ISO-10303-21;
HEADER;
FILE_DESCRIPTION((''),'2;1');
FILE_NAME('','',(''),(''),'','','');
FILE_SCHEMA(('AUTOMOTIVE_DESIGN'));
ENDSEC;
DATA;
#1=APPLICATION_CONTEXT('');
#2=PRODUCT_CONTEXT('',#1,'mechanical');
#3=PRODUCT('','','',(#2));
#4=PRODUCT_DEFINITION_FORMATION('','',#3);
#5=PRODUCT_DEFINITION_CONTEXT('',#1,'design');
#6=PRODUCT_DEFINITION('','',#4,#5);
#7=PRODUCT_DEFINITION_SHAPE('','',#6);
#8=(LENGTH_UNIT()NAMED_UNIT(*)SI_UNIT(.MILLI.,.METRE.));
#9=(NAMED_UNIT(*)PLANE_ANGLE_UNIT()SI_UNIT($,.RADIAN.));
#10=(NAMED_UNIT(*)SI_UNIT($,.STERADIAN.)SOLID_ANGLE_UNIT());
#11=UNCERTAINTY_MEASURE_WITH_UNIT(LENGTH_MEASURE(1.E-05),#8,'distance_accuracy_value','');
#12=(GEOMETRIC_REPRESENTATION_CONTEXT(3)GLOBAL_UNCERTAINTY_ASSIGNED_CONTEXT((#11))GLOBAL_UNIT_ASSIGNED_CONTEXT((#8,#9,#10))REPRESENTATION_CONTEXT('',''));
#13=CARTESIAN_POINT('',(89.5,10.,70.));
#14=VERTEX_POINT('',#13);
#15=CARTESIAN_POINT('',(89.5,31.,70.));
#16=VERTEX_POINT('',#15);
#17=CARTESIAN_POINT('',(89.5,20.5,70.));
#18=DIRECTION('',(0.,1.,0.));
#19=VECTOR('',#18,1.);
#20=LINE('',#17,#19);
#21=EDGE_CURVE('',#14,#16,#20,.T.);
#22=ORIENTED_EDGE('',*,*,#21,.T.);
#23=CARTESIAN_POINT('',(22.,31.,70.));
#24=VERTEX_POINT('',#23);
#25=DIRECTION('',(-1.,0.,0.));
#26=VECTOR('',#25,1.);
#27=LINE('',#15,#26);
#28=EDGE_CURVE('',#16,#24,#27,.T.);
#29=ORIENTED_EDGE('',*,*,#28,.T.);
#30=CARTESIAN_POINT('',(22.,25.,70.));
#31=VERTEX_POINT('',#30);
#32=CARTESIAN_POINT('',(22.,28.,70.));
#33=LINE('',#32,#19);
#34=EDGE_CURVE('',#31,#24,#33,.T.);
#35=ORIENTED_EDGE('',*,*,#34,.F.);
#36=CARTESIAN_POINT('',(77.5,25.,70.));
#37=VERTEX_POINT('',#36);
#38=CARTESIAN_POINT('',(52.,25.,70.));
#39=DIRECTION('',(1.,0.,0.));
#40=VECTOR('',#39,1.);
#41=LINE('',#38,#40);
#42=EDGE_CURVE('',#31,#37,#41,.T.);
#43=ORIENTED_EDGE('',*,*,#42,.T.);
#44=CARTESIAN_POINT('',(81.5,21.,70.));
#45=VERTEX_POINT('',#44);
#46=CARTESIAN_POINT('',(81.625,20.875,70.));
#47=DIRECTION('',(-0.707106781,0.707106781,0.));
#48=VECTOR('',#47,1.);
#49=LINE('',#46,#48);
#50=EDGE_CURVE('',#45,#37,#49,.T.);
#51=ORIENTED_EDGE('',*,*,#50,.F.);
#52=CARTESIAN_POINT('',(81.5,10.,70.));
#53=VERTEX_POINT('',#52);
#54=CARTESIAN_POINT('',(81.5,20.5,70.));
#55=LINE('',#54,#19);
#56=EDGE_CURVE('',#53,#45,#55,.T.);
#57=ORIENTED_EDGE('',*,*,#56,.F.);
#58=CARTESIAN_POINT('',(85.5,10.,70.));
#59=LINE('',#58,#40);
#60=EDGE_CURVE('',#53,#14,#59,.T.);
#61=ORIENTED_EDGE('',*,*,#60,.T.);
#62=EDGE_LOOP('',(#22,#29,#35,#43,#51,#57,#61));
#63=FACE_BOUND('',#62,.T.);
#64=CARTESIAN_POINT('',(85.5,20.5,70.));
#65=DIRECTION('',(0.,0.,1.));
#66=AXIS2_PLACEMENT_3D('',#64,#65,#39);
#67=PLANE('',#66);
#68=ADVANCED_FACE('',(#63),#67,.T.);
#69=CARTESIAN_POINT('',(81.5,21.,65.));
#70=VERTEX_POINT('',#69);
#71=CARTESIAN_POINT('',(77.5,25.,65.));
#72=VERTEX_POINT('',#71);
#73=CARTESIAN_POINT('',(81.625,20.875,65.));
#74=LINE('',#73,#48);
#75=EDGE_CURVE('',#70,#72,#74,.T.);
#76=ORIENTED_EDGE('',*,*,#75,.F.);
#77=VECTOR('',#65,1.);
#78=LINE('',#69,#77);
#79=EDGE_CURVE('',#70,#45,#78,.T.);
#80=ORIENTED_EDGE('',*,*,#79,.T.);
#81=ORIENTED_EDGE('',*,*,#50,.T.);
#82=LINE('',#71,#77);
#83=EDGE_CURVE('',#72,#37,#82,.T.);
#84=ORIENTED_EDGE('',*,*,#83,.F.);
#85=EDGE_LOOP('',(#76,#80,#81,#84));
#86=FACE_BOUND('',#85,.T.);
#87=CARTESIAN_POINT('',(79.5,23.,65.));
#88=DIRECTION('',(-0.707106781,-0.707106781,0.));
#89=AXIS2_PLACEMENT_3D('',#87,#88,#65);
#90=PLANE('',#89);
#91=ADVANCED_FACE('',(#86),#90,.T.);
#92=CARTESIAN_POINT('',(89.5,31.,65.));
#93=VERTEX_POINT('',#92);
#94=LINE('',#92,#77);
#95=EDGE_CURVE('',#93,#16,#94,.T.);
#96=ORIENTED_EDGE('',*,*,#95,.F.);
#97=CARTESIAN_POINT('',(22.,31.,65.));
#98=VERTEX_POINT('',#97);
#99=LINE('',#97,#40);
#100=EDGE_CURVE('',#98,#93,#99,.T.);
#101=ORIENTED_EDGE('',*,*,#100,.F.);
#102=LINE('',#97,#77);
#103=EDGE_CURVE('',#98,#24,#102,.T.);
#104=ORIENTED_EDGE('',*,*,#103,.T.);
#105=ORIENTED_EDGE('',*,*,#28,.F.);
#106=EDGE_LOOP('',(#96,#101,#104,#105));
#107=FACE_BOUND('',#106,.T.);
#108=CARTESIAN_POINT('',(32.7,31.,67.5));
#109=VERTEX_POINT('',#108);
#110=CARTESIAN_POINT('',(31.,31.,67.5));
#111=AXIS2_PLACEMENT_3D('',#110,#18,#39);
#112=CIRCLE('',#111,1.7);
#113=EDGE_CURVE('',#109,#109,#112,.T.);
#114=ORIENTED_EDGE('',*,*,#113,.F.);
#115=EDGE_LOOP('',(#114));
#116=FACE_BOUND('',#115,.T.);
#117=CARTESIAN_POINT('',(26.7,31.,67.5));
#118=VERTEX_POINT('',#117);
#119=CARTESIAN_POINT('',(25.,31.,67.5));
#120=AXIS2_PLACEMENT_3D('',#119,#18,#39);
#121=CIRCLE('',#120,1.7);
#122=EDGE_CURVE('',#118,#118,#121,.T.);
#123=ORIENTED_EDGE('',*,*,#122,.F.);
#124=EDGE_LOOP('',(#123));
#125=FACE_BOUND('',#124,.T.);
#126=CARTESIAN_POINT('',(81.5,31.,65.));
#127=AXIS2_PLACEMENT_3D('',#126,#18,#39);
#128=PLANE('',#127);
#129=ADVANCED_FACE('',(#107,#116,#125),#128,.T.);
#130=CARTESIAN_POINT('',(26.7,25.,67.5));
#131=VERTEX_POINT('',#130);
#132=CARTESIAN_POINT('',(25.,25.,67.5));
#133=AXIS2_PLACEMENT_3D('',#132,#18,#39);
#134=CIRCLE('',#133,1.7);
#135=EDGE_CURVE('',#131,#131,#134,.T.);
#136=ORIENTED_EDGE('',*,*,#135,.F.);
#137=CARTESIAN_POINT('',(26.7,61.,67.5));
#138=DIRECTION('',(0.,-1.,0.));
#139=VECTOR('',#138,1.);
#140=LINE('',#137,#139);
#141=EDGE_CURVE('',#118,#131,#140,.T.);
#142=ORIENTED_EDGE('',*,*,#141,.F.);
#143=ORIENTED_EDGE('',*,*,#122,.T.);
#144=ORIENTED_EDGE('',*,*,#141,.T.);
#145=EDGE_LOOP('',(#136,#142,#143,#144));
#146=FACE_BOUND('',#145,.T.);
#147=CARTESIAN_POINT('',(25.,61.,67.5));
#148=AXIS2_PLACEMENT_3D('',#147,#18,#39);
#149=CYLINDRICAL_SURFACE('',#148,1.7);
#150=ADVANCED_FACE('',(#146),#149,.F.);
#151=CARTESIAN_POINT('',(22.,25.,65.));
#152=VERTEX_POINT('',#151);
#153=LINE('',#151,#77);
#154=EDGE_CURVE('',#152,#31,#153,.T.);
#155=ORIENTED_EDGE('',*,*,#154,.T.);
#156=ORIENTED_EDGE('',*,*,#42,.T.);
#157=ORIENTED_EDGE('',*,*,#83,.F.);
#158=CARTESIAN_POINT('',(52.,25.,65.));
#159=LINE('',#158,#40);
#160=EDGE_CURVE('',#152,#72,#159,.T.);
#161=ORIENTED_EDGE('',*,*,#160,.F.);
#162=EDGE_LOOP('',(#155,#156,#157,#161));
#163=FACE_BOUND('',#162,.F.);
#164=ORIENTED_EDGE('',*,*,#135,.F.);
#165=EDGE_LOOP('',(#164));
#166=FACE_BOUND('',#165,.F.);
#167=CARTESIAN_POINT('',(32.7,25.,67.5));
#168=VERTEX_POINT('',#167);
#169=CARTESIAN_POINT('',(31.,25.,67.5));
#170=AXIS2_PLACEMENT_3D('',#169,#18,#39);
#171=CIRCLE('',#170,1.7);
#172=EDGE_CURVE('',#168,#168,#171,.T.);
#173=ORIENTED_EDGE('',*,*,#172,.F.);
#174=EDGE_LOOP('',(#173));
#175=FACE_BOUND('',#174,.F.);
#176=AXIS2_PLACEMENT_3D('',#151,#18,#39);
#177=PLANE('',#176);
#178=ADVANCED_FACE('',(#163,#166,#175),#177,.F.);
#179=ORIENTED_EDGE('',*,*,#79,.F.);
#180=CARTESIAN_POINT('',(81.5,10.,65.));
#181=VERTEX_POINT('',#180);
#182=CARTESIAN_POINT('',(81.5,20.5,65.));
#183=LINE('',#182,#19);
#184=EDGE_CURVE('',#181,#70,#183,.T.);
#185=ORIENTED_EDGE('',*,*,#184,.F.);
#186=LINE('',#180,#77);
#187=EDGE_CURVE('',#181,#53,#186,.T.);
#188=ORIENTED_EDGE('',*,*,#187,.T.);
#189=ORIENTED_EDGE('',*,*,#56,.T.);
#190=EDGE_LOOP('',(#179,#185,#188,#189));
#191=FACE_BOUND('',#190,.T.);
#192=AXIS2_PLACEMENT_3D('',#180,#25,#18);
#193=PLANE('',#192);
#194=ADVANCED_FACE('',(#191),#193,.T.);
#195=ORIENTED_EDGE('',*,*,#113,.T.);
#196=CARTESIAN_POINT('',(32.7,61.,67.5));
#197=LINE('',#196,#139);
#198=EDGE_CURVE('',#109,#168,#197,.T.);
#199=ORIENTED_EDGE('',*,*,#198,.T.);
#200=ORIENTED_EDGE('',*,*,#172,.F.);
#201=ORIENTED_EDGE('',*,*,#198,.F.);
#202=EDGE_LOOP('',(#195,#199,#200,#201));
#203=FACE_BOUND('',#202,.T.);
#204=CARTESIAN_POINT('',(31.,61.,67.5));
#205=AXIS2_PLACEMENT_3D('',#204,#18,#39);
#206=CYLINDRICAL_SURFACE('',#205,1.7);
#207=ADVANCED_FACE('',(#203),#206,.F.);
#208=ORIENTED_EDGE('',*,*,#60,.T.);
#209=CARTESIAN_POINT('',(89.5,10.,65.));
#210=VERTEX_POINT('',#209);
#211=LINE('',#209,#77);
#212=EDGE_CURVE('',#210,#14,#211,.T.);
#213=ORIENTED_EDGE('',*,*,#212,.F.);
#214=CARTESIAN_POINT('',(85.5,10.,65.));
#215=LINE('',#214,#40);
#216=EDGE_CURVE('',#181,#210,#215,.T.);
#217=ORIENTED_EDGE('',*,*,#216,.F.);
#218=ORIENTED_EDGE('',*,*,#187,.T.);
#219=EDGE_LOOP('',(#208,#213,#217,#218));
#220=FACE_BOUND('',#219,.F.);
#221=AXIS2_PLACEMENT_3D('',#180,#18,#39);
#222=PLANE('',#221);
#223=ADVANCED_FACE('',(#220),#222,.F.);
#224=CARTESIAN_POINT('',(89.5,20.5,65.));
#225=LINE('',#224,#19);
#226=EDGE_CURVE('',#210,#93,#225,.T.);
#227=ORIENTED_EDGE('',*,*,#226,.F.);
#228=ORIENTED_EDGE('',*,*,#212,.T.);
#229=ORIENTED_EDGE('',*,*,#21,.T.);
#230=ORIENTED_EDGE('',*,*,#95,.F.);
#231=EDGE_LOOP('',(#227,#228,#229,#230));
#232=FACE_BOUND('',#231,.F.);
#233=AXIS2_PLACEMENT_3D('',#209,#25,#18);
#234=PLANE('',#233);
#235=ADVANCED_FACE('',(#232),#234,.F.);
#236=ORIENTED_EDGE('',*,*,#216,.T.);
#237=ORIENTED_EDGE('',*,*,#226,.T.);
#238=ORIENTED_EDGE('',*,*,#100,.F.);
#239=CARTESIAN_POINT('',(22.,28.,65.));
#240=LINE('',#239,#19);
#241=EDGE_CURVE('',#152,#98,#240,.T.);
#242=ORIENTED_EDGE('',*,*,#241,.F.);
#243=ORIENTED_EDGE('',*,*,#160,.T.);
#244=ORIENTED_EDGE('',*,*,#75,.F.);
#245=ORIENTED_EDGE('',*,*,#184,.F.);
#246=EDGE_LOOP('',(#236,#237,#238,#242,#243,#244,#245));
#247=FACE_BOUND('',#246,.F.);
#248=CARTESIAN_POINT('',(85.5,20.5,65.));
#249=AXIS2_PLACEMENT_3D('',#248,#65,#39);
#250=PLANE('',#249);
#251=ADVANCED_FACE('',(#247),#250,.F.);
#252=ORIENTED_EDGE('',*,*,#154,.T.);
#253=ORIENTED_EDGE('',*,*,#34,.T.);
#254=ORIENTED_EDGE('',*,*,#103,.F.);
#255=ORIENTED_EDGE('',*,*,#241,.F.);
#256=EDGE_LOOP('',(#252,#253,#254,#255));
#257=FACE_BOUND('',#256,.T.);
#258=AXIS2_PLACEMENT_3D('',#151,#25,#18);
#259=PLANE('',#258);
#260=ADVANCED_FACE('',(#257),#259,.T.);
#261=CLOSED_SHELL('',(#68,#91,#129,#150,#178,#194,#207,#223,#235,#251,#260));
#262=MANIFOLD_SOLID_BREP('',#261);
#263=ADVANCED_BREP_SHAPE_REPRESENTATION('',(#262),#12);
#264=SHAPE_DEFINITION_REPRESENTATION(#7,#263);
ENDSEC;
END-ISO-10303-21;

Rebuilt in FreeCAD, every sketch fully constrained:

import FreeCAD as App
import Part
import Sketcher

V = App.Vector


def edges_at(feature, points):
    """Names of the edges that pass closest to the given points."""
    edges = feature.Shape.Edges
    near = lambda p: min(range(len(edges)), key=lambda i: edges[i].distToShape(Part.Vertex(*p))[0])
    return sorted({f"Edge{near(p) + 1}" for p in points})


def add_polygon(sketch, points):
    """Adds a closed chain of lines whose ends are joined by coincident constraints."""
    first, n = sketch.GeometryCount, len(points)
    for a, b in zip(points, points[1:] + points[:1]):
        sketch.addGeometry(Part.LineSegment(App.Vector(*a, 0), App.Vector(*b, 0)), False)
    for i in range(n):
        sketch.addConstraint(Sketcher.Constraint("Coincident", first + i, 2, first + (i + 1) % n, 1))

doc = App.newDocument("Part")
body = doc.addObject("PartDesign::Body", "Body")

# Sketch on XY plane
sketch1 = doc.addObject("Sketcher::SketchObject", "Sketch")
body.addObject(sketch1)
sketch1.AttachmentSupport = (doc.XY_Plane, [""])
sketch1.MapMode = "FlatFace"
sketch1.addGeometry(Part.Circle(V(0, 0, 0), V(0, 0, 1), 1.7), False)
sketch1.addConstraint([
    Sketcher.Constraint("Coincident", 0, 3, -1, 1),
    Sketcher.Constraint("Diameter", 0, 3.4),
])
pad1 = doc.addObject("PartDesign::Pad", "Pad")
body.addObject(pad1)
pad1.Profile = sketch1
pad1.Length = 50
body2 = doc.addObject("PartDesign::Body", "Body001")
doc.recompute()

body.Placement = App.Placement(V(0, 0, 0), App.Rotation(V(1, 0, 0), 90))
boolean = doc.addObject("PartDesign::Boolean", "Boolean")
body2.addObject(boolean)
boolean.Type = "Fuse"
boolean.addObjects([body])
body3 = doc.addObject("PartDesign::Body", "Body002")
doc.recompute()

body2.Placement = App.Placement(V(25, 61, 67.5), App.Rotation(V(0, 0, 1), 0))
boolean2 = doc.addObject("PartDesign::Boolean", "Boolean001")
body3.addObject(boolean2)
boolean2.Type = "Fuse"
boolean2.addObjects([body2])
body4 = doc.addObject("PartDesign::Body", "Body003")

# Sketch on XY plane
sketch2 = doc.addObject("Sketcher::SketchObject", "Sketch001")
body4.addObject(sketch2)
sketch2.AttachmentSupport = (doc.getObject("XY_Plane003"), [""])
sketch2.MapMode = "FlatFace"
sketch2.addGeometry(Part.Circle(V(0, 0, 0), V(0, 0, 1), 1.7), False)
sketch2.addConstraint([
    Sketcher.Constraint("Coincident", 0, 3, -1, 1),
    Sketcher.Constraint("Diameter", 0, 3.4),
])
pad2 = doc.addObject("PartDesign::Pad", "Pad001")
body4.addObject(pad2)
pad2.Profile = sketch2
pad2.Length = 50
body5 = doc.addObject("PartDesign::Body", "Body004")
doc.recompute()

body4.Placement = App.Placement(V(0, 0, 0), App.Rotation(V(1, 0, 0), 90))
boolean3 = doc.addObject("PartDesign::Boolean", "Boolean002")
body5.addObject(boolean3)
boolean3.Type = "Fuse"
boolean3.addObjects([body4])
body6 = doc.addObject("PartDesign::Body", "Body005")
body6.AllowCompound = True
doc.recompute()

body5.Placement = App.Placement(V(31, 61, 67.5), App.Rotation(V(0, 0, 1), 0))
boolean4 = doc.addObject("PartDesign::Boolean", "Boolean003")
body6.addObject(boolean4)
boolean4.Type = "Fuse"
boolean4.addObjects([body5])
doc.recompute()

boolean5 = doc.addObject("PartDesign::Boolean", "Boolean004")
body6.addObject(boolean5)
boolean5.Type = "Fuse"
boolean5.addObjects([body3])
body7 = doc.addObject("PartDesign::Body", "Body006")

# Sketch on XY plane
sketch3 = doc.addObject("Sketcher::SketchObject", "Sketch002")
body7.addObject(sketch3)
sketch3.AttachmentSupport = (doc.getObject("XY_Plane006"), [""])
sketch3.MapMode = "FlatFace"
sketch3.AttachmentOffset = App.Placement(V(0, 0, 65), App.Rotation())
add_polygon(sketch3, [(82, 31), (82, 10), (90, 10), (90, 31)])  # lines 0-3
sketch3.addConstraint([
    Sketcher.Constraint("Vertical", 0),
    Sketcher.Constraint("Horizontal", 1),
    Sketcher.Constraint("Vertical", 2),
    Sketcher.Constraint("Horizontal", 3),
    Sketcher.Constraint("DistanceX", 1, 1, 1, 2, 8.0),
    Sketcher.Constraint("DistanceY", 0, 2, 0, 1, 21.0),
    Sketcher.Constraint("DistanceY", -1, 1, 0, 2, 10.0),
    Sketcher.Constraint("DistanceX", -1, 1, 0, 2, 81.5),
])
pad3 = doc.addObject("PartDesign::Pad", "Pad002")
body7.addObject(pad3)
pad3.Profile = sketch3
pad3.Length = 5
body8 = doc.addObject("PartDesign::Body", "Body007")

# Sketch on XY plane
sketch4 = doc.addObject("Sketcher::SketchObject", "Sketch003")
body8.addObject(sketch4)
sketch4.AttachmentSupport = (doc.getObject("XY_Plane007"), [""])
sketch4.MapMode = "FlatFace"
sketch4.AttachmentOffset = App.Placement(V(0, 0, 65), App.Rotation())
add_polygon(sketch4, [(22, 31), (22, 25), (82, 25), (82, 31)])  # lines 0-3
sketch4.addConstraint([
    Sketcher.Constraint("Vertical", 0),
    Sketcher.Constraint("Horizontal", 1),
    Sketcher.Constraint("Vertical", 2),
    Sketcher.Constraint("Horizontal", 3),
    Sketcher.Constraint("DistanceX", 1, 1, 1, 2, 60.0),
    Sketcher.Constraint("DistanceY", 0, 2, 0, 1, 6.0),
    Sketcher.Constraint("DistanceX", -1, 1, 0, 2, 22.0),
    Sketcher.Constraint("DistanceY", -1, 1, 0, 2, 25.0),
])
pad4 = doc.addObject("PartDesign::Pad", "Pad003")
body8.addObject(pad4)
pad4.Profile = sketch4
pad4.Length = 5
doc.recompute()

boolean6 = doc.addObject("PartDesign::Boolean", "Boolean005")
body8.addObject(boolean6)
boolean6.Type = "Fuse"
boolean6.addObjects([body7])
doc.recompute()

chamfer = doc.addObject("PartDesign::Chamfer", "Chamfer")
body8.addObject(chamfer)
chamfer.Base = (boolean6, edges_at(boolean6, [(81.5, 25, 67.5)]))
chamfer.Size = 4
doc.recompute()

boolean7 = doc.addObject("PartDesign::Boolean", "Boolean006")
body8.addObject(boolean7)
boolean7.Type = "Cut"
boolean7.addObjects([body6])

doc.recompute()
